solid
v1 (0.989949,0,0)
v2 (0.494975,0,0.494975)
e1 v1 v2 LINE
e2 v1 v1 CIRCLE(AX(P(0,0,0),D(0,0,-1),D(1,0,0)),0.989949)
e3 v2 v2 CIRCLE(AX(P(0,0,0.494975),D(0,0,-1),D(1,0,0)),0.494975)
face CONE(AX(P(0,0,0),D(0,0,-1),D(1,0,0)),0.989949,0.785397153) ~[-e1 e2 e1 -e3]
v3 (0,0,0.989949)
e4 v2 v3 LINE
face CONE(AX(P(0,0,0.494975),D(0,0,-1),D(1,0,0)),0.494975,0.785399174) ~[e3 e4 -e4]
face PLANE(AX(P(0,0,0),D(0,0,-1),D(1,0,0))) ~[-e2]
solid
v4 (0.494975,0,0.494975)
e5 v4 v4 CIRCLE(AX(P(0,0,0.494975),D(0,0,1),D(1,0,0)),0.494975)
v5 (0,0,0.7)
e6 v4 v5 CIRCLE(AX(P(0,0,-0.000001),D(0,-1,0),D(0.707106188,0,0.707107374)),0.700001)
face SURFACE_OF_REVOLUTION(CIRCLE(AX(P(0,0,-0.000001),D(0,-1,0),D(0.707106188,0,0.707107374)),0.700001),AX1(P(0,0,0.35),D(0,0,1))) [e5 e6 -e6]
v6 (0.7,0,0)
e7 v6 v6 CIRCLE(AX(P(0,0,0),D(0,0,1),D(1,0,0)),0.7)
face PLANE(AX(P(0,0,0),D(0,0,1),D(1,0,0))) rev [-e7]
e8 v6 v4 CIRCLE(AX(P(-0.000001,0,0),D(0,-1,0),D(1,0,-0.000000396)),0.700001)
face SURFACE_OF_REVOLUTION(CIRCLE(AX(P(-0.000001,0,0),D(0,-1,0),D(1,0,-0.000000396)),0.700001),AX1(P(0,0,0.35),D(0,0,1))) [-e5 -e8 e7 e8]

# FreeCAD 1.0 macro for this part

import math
import FreeCAD as App
import Part
import Sketcher

V = App.Vector
Q = App.Units.Quantity

doc = App.newDocument("Part")
body = doc.addObject("PartDesign::Body", "Body")

# Sketch on XZ plane
sketch1 = doc.addObject("Sketcher::SketchObject", "Sketch")
body.addObject(sketch1)
sketch1.AttachmentSupport = (doc.XZ_Plane, [""])
sketch1.MapMode = "FlatFace"
sketch1.addGeometry([
    Part.LineSegment(V(0, 0, 0), V(0.7, 0, 0)),
    Part.ArcOfCircle(Part.Circle(V(-0.000001, 0, 0), V(0, 0, 1), 0.700001), math.radians(-0.000023), math.radians(44.999952)),
    Part.ArcOfCircle(Part.Circle(V(0, -0.000001, 0), V(0, 0, 1), 0.700001), math.radians(45.000048), math.radians(90.000023)),
    Part.LineSegment(V(0, 0.7, 0), V(0, 0, 0)),
], False)
sketch1.addConstraint([
    Sketcher.Constraint("Coincident", 0, 2, 1, 1),
    Sketcher.Constraint("Tangent", 1, 2, 2, 1),
    Sketcher.Constraint("Coincident", 2, 2, 3, 1),
    Sketcher.Constraint("Coincident", 3, 2, 0, 1),
    Sketcher.Constraint("Horizontal", 0),
    Sketcher.Constraint("Vertical", 3),
    Sketcher.Constraint("Coincident", 1, 3, -1, 1),
    Sketcher.Constraint("Coincident", 3, 2, -1, 1),
    Sketcher.Constraint("Equal", 1, 2),
    Sketcher.Constraint("Radius", 1, Q("0.700001 mm")),
    Sketcher.Constraint("DistanceX", -1, 1, 1, 2, Q("0.494975 mm")),
])
revolution = doc.addObject("PartDesign::Revolution", "Revolution")
body.addObject(revolution)
revolution.Profile = sketch1
revolution.ReferenceAxis = (sketch1, ["V_Axis"])
revolution.Angle = 360
body2 = doc.addObject("PartDesign::Body", "Body001")

# Sketch on XZ plane
sketch2 = doc.addObject("Sketcher::SketchObject", "Sketch001")
body2.addObject(sketch2)
sketch2.AttachmentSupport = (doc.getObject("XZ_Plane001"), [""])
sketch2.MapMode = "FlatFace"
sketch2.addGeometry([
    Part.LineSegment(V(0.494975, 0.494975, 0), V(0, 0.989949, 0)),
    Part.LineSegment(V(0, 0.989949, 0), V(0, 0, 0)),
    Part.LineSegment(V(0, 0, 0), V(0.989949, 0, 0)),
    Part.LineSegment(V(0.989949, 0, 0), V(0.494975, 0.494975, 0)),
], False)
sketch2.addConstraint([
    Sketcher.Constraint("Coincident", 0, 2, 1, 1),
    Sketcher.Constraint("Coincident", 1, 2, 2, 1),
    Sketcher.Constraint("Coincident", 2, 2, 3, 1),
    Sketcher.Constraint("Coincident", 3, 2, 0, 1),
    Sketcher.Constraint("Vertical", 1),
    Sketcher.Constraint("Horizontal", 2),
    Sketcher.Constraint("Coincident", 1, 2, -1, 1),
    Sketcher.Constraint("Equal", 2, 1),
    Sketcher.Constraint("Equal", 0, 3),
    Sketcher.Constraint("Distance", 0, Q("0.7 mm")),
    Sketcher.Constraint("DistanceX", -1, 1, 3, 2, Q("0.494975 mm")),
])
revolution2 = doc.addObject("PartDesign::Revolution", "Revolution001")
body2.addObject(revolution2)
revolution2.Profile = sketch2
revolution2.ReferenceAxis = (sketch2, ["V_Axis"])
revolution2.Angle = 360

doc.recompute()
